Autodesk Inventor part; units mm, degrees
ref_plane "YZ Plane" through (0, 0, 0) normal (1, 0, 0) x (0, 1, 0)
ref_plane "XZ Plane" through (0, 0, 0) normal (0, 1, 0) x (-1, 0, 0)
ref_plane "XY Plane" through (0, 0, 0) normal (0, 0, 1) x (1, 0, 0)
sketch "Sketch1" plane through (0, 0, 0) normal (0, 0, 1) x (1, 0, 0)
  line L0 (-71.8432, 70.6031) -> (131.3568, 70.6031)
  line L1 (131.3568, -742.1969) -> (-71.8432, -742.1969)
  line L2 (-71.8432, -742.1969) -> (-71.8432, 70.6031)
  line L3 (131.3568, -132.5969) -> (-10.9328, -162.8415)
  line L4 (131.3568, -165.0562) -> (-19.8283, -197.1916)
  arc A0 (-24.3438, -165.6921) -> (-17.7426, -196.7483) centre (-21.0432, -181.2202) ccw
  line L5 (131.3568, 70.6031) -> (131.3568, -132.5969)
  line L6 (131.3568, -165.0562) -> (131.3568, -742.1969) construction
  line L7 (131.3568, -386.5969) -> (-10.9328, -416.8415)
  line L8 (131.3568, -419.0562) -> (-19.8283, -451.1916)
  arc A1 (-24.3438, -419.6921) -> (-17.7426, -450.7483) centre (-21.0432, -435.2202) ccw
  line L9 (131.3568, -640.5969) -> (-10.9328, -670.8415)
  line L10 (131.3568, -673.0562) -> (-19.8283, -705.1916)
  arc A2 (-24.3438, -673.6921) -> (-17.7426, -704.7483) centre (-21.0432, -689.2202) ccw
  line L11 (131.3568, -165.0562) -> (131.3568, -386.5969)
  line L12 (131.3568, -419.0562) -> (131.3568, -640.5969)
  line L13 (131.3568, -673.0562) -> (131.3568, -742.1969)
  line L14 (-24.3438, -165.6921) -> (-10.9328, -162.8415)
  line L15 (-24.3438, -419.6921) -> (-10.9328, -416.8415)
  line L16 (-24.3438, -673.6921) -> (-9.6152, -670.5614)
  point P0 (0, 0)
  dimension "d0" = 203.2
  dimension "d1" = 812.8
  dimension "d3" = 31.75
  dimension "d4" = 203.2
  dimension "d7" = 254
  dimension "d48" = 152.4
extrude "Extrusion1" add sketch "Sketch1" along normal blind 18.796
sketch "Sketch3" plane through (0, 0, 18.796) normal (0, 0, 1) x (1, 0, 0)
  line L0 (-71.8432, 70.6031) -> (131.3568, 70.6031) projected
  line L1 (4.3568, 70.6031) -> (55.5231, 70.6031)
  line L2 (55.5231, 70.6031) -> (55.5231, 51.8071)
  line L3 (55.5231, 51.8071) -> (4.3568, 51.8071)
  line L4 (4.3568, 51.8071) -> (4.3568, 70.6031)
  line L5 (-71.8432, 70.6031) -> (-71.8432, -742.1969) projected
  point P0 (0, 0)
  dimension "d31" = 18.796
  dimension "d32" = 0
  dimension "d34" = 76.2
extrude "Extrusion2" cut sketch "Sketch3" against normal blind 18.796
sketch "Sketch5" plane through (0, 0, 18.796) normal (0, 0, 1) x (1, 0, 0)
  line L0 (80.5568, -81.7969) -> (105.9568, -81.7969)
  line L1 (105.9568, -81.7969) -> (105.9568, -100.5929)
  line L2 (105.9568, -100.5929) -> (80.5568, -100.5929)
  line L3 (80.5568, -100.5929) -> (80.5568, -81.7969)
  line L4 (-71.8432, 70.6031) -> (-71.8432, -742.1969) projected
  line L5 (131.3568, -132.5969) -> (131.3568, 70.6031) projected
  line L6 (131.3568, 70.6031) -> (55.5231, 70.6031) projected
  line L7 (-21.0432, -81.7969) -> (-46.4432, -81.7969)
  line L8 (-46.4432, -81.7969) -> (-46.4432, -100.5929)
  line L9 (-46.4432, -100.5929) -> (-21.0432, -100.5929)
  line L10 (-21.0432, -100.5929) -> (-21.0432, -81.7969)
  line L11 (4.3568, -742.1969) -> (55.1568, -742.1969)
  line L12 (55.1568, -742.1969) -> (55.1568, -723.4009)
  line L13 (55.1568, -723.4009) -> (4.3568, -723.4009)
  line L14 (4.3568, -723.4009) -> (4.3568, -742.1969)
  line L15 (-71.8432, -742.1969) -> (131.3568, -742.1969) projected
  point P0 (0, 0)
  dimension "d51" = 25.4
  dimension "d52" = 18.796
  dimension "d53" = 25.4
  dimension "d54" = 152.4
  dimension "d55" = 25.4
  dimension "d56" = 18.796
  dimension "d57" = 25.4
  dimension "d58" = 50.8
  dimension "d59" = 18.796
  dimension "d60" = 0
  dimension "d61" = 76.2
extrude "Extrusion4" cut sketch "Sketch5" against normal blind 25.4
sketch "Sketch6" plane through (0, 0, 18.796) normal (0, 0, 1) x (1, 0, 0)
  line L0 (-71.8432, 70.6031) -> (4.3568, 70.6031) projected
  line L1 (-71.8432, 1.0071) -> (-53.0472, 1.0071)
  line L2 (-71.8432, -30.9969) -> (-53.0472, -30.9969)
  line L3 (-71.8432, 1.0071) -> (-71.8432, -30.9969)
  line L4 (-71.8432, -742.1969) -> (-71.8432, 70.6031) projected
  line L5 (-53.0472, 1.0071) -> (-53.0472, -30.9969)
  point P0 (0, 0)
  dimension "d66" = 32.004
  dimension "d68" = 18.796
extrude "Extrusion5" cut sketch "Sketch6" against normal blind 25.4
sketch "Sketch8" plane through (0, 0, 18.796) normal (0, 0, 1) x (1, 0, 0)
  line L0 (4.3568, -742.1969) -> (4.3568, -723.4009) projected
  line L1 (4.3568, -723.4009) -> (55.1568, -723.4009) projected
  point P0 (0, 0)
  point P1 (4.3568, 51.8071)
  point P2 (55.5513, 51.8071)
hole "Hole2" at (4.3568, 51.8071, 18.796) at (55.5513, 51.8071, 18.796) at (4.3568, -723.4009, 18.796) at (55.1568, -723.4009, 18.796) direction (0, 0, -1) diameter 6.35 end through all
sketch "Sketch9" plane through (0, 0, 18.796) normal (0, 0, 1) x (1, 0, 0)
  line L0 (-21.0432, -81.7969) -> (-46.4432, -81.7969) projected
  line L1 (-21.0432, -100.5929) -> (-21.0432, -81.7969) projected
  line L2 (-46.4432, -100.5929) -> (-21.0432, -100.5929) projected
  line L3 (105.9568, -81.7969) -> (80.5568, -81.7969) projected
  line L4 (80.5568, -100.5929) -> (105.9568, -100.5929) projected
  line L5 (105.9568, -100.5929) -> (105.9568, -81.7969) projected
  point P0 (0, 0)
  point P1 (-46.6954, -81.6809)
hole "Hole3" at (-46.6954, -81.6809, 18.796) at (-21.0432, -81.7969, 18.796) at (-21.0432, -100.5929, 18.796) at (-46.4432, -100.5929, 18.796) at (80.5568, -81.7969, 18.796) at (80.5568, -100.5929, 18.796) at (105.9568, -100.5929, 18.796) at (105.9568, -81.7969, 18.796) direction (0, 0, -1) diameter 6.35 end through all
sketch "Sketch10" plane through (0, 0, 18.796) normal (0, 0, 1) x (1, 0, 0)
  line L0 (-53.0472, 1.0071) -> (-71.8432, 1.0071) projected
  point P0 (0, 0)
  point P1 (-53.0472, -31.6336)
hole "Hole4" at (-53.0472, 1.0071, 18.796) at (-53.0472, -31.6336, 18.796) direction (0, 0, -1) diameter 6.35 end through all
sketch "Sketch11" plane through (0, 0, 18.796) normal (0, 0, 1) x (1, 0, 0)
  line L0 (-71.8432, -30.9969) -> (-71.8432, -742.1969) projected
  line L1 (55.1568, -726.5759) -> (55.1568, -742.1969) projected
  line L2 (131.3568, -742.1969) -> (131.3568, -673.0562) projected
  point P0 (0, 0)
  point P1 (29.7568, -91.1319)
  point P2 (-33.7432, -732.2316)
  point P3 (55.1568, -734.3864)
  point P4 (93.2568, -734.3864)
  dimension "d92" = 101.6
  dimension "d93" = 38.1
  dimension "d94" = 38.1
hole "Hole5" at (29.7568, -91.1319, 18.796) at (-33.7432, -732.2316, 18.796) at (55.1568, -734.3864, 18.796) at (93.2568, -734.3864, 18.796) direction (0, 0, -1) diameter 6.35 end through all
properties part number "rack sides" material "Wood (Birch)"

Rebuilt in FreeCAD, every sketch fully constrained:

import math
import FreeCAD as App
import Part
import Sketcher
from FreeCAD import Vector
Q = App.Units.Quantity


def add_polygon(sketch, points):
    """Adds a closed chain of lines whose ends are joined by coincident constraints."""
    first, n = sketch.GeometryCount, len(points)
    for a, b in zip(points, points[1:] + points[:1]):
        sketch.addGeometry(Part.LineSegment(App.Vector(*a, 0), App.Vector(*b, 0)), False)
    for i in range(n):
        sketch.addConstraint(Sketcher.Constraint("Coincident", first + i, 2, first + (i + 1) % n, 1))

doc = App.newDocument("Part")
body = doc.addObject("PartDesign::Body", "Body")

# Sketch on XY plane
sketch1 = body.newObject("Sketcher::SketchObject", "Sketch")
sketch1.AttachmentSupport = (doc.getObject("XY_Plane"), [""])
sketch1.MapMode = "FlatFace"
sketch1.addGeometry([
    Part.LineSegment(Vector(131, 71, 0), Vector(-72, 71, 0)),  # 0
    Part.LineSegment(Vector(-72, 71, 0), Vector(-72, -742, 0)),  # 1
    Part.LineSegment(Vector(-72, -742, 0), Vector(131, -742, 0)),  # 2
    Part.LineSegment(Vector(131, -742, 0), Vector(131, -673, 0)),  # 3
    Part.LineSegment(Vector(131, -673, 0), Vector(-18, -705, 0)),  # 4
    Part.ArcOfCircle(Part.Circle(Vector(-21, -689, 0), Vector(0, 0, 1), 16), math.radians(102), math.radians(282)),  # 5
    Part.LineSegment(Vector(-24, -674, 0), Vector(-11, -671, 0)),  # 6
    Part.LineSegment(Vector(-11, -671, 0), Vector(131, -641, 0)),  # 7
    Part.LineSegment(Vector(131, -641, 0), Vector(131, -419, 0)),  # 8
    Part.LineSegment(Vector(131, -419, 0), Vector(-18, -451, 0)),  # 9
    Part.ArcOfCircle(Part.Circle(Vector(-21, -435, 0), Vector(0, 0, 1), 16), math.radians(102), math.radians(282)),  # 10
    Part.LineSegment(Vector(-24, -420, 0), Vector(-11, -417, 0)),  # 11
    Part.LineSegment(Vector(-11, -417, 0), Vector(131, -387, 0)),  # 12
    Part.LineSegment(Vector(131, -387, 0), Vector(131, -165, 0)),  # 13
    Part.LineSegment(Vector(131, -165, 0), Vector(-18, -197, 0)),  # 14
    Part.ArcOfCircle(Part.Circle(Vector(-21, -181, 0), Vector(0, 0, 1), 16), math.radians(102), math.radians(282)),  # 15
    Part.LineSegment(Vector(-24, -166, 0), Vector(-11, -163, 0)),  # 16
    Part.LineSegment(Vector(-11, -163, 0), Vector(131, -133, 0)),  # 17
    Part.LineSegment(Vector(131, -133, 0), Vector(131, 71, 0)),  # 18
], False)
sketch1.addConstraint([
    Sketcher.Constraint("Coincident", 0, 2, 1, 1),
    Sketcher.Constraint("Coincident", 1, 2, 2, 1),
    Sketcher.Constraint("Coincident", 2, 2, 3, 1),
    Sketcher.Constraint("Coincident", 3, 2, 4, 1),
    Sketcher.Constraint("Tangent", 4, 2, 5, 2),
    Sketcher.Constraint("Tangent", 5, 1, 6, 1),
    Sketcher.Constraint("Coincident", 6, 2, 7, 1),
    Sketcher.Constraint("Coincident", 7, 2, 8, 1),
    Sketcher.Constraint("Coincident", 8, 2, 9, 1),
    Sketcher.Constraint("Tangent", 9, 2, 10, 2),
    Sketcher.Constraint("Tangent", 10, 1, 11, 1),
    Sketcher.Constraint("Coincident", 11, 2, 12, 1),
    Sketcher.Constraint("Coincident", 12, 2, 13, 1),
    Sketcher.Constraint("Coincident", 13, 2, 14, 1),
    Sketcher.Constraint("Tangent", 14, 2, 15, 2),
    Sketcher.Constraint("Tangent", 15, 1, 16, 1),
    Sketcher.Constraint("Coincident", 16, 2, 17, 1),
    Sketcher.Constraint("Coincident", 17, 2, 18, 1),
    Sketcher.Constraint("Coincident", 18, 2, 0, 1),
    Sketcher.Constraint("Horizontal", 0),
    Sketcher.Constraint("Vertical", 1),
    Sketcher.Constraint("Horizontal", 2),
    Sketcher.Constraint("Vertical", 3),
    Sketcher.Constraint("Vertical", 8),
    Sketcher.Constraint("Vertical", 13),
    Sketcher.Constraint("Vertical", 18),
    Sketcher.Constraint("Equal", 5, 10),
    Sketcher.Constraint("Equal", 10, 15),
    Sketcher.Constraint("Parallel", 4, 6),
    Sketcher.Constraint("Parallel", 6, 7),
    Sketcher.Constraint("Parallel", 7, 9),
    Sketcher.Constraint("Parallel", 9, 11),
    Sketcher.Constraint("Parallel", 11, 12),
    Sketcher.Constraint("Parallel", 12, 14),
    Sketcher.Constraint("Parallel", 14, 16),
    Sketcher.Constraint("Parallel", 16, 17),
    Sketcher.Constraint("Vertical", 5, 3, 10, 3),
    Sketcher.Constraint("Vertical", 10, 3, 15, 3),
    Sketcher.Constraint("Vertical", 3, 2, 7, 2),
    Sketcher.Constraint("Vertical", 6, 2, 11, 2),
    Sketcher.Constraint("Vertical", 8, 2, 12, 2),
    Sketcher.Constraint("Vertical", 11, 2, 16, 2),
    Sketcher.Constraint("Vertical", 13, 2, 17, 2),
    Sketcher.Constraint("Equal", 8, 13),
    Sketcher.Constraint("Equal", 2, 18),
    Sketcher.Constraint("DistanceX", 0, 2, 0, 1, Q("8 in")),
    Sketcher.Constraint("DistanceY", 1, 2, 1, 1, Q("32 in")),
    Sketcher.Constraint("Radius", 5, Q("0.625 in")),
    Sketcher.Constraint("DistanceY", 5, 3, 10, 3, Q("10 in")),
    Sketcher.Constraint("DistanceX", 5, 3, 2, 2, Q("6 in")),
    Sketcher.Constraint("Angle", 4, Q("-168 deg")),
    Sketcher.Constraint("DistanceY", 4, 2, -1, 1, Q("27.746 in")),
    Sketcher.Constraint("DistanceX", 5, 1, 6, 2, Q("0.528 in")),
    Sketcher.Constraint("DistanceX", 5, 3, -1, 1, Q("21.0432 mm")),
])
pad1 = body.newObject("PartDesign::Pad", "Pad")
pad1.Profile = sketch1
pad1.Length = Q("0.74 in")

# Sketch on XY plane
sketch2 = body.newObject("Sketcher::SketchObject", "Sketch001")
sketch2.AttachmentSupport = (doc.getObject("XY_Plane"), [""])
sketch2.MapMode = "FlatFace"
sketch2.AttachmentOffset = App.Placement(Vector(0, 0, 0.74 * 25.4), App.Rotation())
add_polygon(sketch2, [(56, 71), (4, 71), (4, 52), (56, 52)])  # lines 0-3
sketch2.addConstraint([
    Sketcher.Constraint("Horizontal", 0),
    Sketcher.Constraint("Vertical", 1),
    Sketcher.Constraint("Horizontal", 2),
    Sketcher.Constraint("Vertical", 3),
    Sketcher.Constraint("DistanceY", 1, 2, 1, 1, Q("0.74 in")),
    Sketcher.Constraint("DistanceX", 0, 2, 0, 1, Q("51.1663 mm")),
    Sketcher.Constraint("DistanceX", -1, 1, 0, 2, Q("4.3568 mm")),
    Sketcher.Constraint("DistanceY", -1, 1, 0, 2, Q("70.603 mm")),
])
pocket1 = body.newObject("PartDesign::Pocket", "Pocket")
pocket1.Profile = sketch2
pocket1.Length = Q("0.74 in")

# Sketch on XY plane
sketch3 = body.newObject("Sketcher::SketchObject", "Sketch002")
sketch3.AttachmentSupport = (doc.getObject("XY_Plane"), [""])
sketch3.MapMode = "FlatFace"
sketch3.AttachmentOffset = App.Placement(Vector(0, 0, 0.74 * 25.4), App.Rotation())
add_polygon(sketch3, [(106, -82), (81, -82), (81, -101), (106, -101)])  # lines 0-3
add_polygon(sketch3, [(-21, -101), (-21, -82), (-46, -82), (-46, -101)])  # lines 4-7
add_polygon(sketch3, [(4, -723), (4, -742), (55, -742), (55, -723)])  # lines 8-11
sketch3.addConstraint([
    Sketcher.Constraint("Horizontal", 0),
    Sketcher.Constraint("Vertical", 1),
    Sketcher.Constraint("Horizontal", 2),
    Sketcher.Constraint("Vertical", 3),
    Sketcher.Constraint("Vertical", 4),
    Sketcher.Constraint("Horizontal", 5),
    Sketcher.Constraint("Vertical", 6),
    Sketcher.Constraint("Horizontal", 7),
    Sketcher.Constraint("Vertical", 8),
    Sketcher.Constraint("Horizontal", 9),
    Sketcher.Constraint("Vertical", 10),
    Sketcher.Constraint("Horizontal", 11),
    Sketcher.Constraint("Horizontal", 3, 2, 4, 2),
    Sketcher.Constraint("Horizontal", 2, 2, 6, 2),
    Sketcher.Constraint("Equal", 2, 5),
    Sketcher.Constraint("Equal", 6, 8),
    Sketcher.Constraint("DistanceX", 0, 2, 0, 1, Q("1 in")),
    Sketcher.Constraint("DistanceX", 9, 1, 9, 2, Q("2 in")),
    Sketcher.Constraint("DistanceX", 5, 2, 3, 2, Q("6 in")),
    Sketcher.Constraint("DistanceX", 7, 2, 8, 2, Q("1 in")),
    Sketcher.Constraint("DistanceY", 1, 2, 1, 1, Q("0.74 in")),
    Sketcher.Constraint("DistanceY", 8, 2, 4, 2, Q("26 in")),
    Sketcher.Constraint("DistanceX", -1, 1, 0, 2, Q("80.5568 mm")),
    Sketcher.Constraint("DistanceY", 0, 2, -1, 1, Q("81.797 mm")),
])
pocket2 = body.newObject("PartDesign::Pocket", "Pocket001")
pocket2.Profile = sketch3
pocket2.Length = Q("1 in")

# Sketch on XY plane
sketch4 = body.newObject("Sketcher::SketchObject", "Sketch003")
sketch4.AttachmentSupport = (doc.getObject("XY_Plane"), [""])
sketch4.MapMode = "FlatFace"
sketch4.AttachmentOffset = App.Placement(Vector(0, 0, 0.74 * 25.4), App.Rotation())
add_polygon(sketch4, [(-53, 1), (-72, 1), (-72, -31), (-53, -31)])  # lines 0-3
sketch4.addConstraint([
    Sketcher.Constraint("Horizontal", 0),
    Sketcher.Constraint("Vertical", 1),
    Sketcher.Constraint("Horizontal", 2),
    Sketcher.Constraint("Vertical", 3),
    Sketcher.Constraint("DistanceX", 0, 2, 0, 1, Q("0.74 in")),
    Sketcher.Constraint("DistanceY", 1, 2, 1, 1, Q("1.26 in")),
    Sketcher.Constraint("DistanceX", 0, 2, -1, 1, Q("71.8432 mm")),
    Sketcher.Constraint("DistanceY", -1, 1, 0, 2, Q("1.007 mm")),
])
pocket3 = body.newObject("PartDesign::Pocket", "Pocket002")
pocket3.Profile = sketch4
pocket3.Length = Q("1 in")

# Sketch on XY plane
sketch5 = body.newObject("Sketcher::SketchObject", "Sketch004")
sketch5.AttachmentSupport = (doc.getObject("XY_Plane"), [""])
sketch5.MapMode = "FlatFace"
sketch5.AttachmentOffset = App.Placement(Vector(0, 0, 0.74 * 25.4), App.Rotation())
sketch5.addGeometry([
    Part.Circle(Vector(4.4, 51.8, 0), Vector(0, 0, 1), 3.2),
    Part.Circle(Vector(55.6, 51.8, 0), Vector(0, 0, 1), 3.2),
    Part.Circle(Vector(4.4, -723.4, 0), Vector(0, 0, 1), 3.2),
    Part.Circle(Vector(55.2, -723.4, 0), Vector(0, 0, 1), 3.2),
], False)
sketch5.addConstraint([
    Sketcher.Constraint("Equal", 0, 1),
    Sketcher.Constraint("Equal", 1, 2),
    Sketcher.Constraint("Equal", 2, 3),
    Sketcher.Constraint("Horizontal", 0, 3, 1, 3),
    Sketcher.Constraint("Horizontal", 2, 3, 3, 3),
    Sketcher.Constraint("Vertical", 0, 3, 2, 3),
    Sketcher.Constraint("Diameter", 0, Q("0.25 in")),
    Sketcher.Constraint("DistanceX", 2, 3, 3, 3, Q("2 in")),
    Sketcher.Constraint("DistanceY", 2, 3, 0, 3, Q("30.52 in")),
    Sketcher.Constraint("DistanceX", -1, 1, 0, 3, Q("4.3568 mm")),
    Sketcher.Constraint("DistanceY", -1, 1, 0, 3, Q("51.807 mm")),
    Sketcher.Constraint("DistanceX", -1, 1, 1, 3, Q("55.5513 mm")),
])
doc.recompute()
hole = body.newObject("PartDesign::Hole", "Hole")
hole.Profile = sketch5
hole.ThreadType = "None"
hole.Diameter = Q("0.25 in")
hole.DepthType = "ThroughAll"

# Sketch on XY plane
sketch6 = body.newObject("Sketcher::SketchObject", "Sketch005")
sketch6.AttachmentSupport = (doc.getObject("XY_Plane"), [""])
sketch6.MapMode = "FlatFace"
sketch6.AttachmentOffset = App.Placement(Vector(0, 0, 0.74 * 25.4), App.Rotation())
sketch6.addGeometry([
    Part.Circle(Vector(-46.7, -81.7, 0), Vector(0, 0, 1), 3.2),  # 0
    Part.Circle(Vector(-21, -81.8, 0), Vector(0, 0, 1), 3.2),  # 1
    Part.Circle(Vector(-21, -100.6, 0), Vector(0, 0, 1), 3.2),  # 2
    Part.Circle(Vector(-46.4, -100.6, 0), Vector(0, 0, 1), 3.2),  # 3
    Part.Circle(Vector(80.6, -81.8, 0), Vector(0, 0, 1), 3.2),  # 4
    Part.Circle(Vector(80.6, -100.6, 0), Vector(0, 0, 1), 3.2),  # 5
    Part.Circle(Vector(106, -100.6, 0), Vector(0, 0, 1), 3.2),  # 6
    Part.Circle(Vector(106, -81.8, 0), Vector(0, 0, 1), 3.2),  # 7
], False)
sketch6.addConstraint([
    Sketcher.Constraint("Equal", 0, 1),
    Sketcher.Constraint("Equal", 1, 2),
    Sketcher.Constraint("Equal", 2, 3),
    Sketcher.Constraint("Equal", 3, 4),
    Sketcher.Constraint("Equal", 4, 5),
    Sketcher.Constraint("Equal", 5, 6),
    Sketcher.Constraint("Equal", 6, 7),
    Sketcher.Constraint("Horizontal", 2, 3, 3, 3),
    Sketcher.Constraint("Horizontal", 1, 3, 4, 3),
    Sketcher.Constraint("Horizontal", 3, 3, 5, 3),
    Sketcher.Constraint("Horizontal", 5, 3, 6, 3),
    Sketcher.Constraint("Horizontal", 4, 3, 7, 3),
    Sketcher.Constraint("Vertical", 1, 3, 2, 3),
    Sketcher.Constraint("Vertical", 4, 3, 5, 3),
    Sketcher.Constraint("Vertical", 6, 3, 7, 3),
    Sketcher.Constraint("Diameter", 0, Q("0.25 in")),
    Sketcher.Constraint("DistanceX", 3, 3, 2, 3, Q("1 in")),
    Sketcher.Constraint("DistanceX", 1, 3, 4, 3, Q("4 in")),
    Sketcher.Constraint("DistanceX", 5, 3, 6, 3, Q("1 in")),
    Sketcher.Constraint("DistanceY", 2, 3, 1, 3, Q("0.74 in")),
    Sketcher.Constraint("DistanceX", 0, 3, -1, 1, Q("1.8384 in")),
    Sketcher.Constraint("DistanceY", 0, 3, -1, 1, Q("81.681 mm")),
    Sketcher.Constraint("DistanceX", 1, 3, -1, 1, Q("21.0432 mm")),
    Sketcher.Constraint("DistanceY", 1, 3, -1, 1, Q("81.797 mm")),
])
doc.recompute()
hole2 = body.newObject("PartDesign::Hole", "Hole001")
hole2.Profile = sketch6
hole2.ThreadType = "None"
hole2.Diameter = Q("0.25 in")
hole2.DepthType = "ThroughAll"

# Sketch on XY plane
sketch7 = body.newObject("Sketcher::SketchObject", "Sketch006")
sketch7.AttachmentSupport = (doc.getObject("XY_Plane"), [""])
sketch7.MapMode = "FlatFace"
sketch7.AttachmentOffset = App.Placement(Vector(0, 0, 0.74 * 25.4), App.Rotation())
sketch7.addGeometry([
    Part.Circle(Vector(-53, 1, 0), Vector(0, 0, 1), 3.2),
    Part.Circle(Vector(-53, -31.6, 0), Vector(0, 0, 1), 3.2),
], False)
sketch7.addConstraint([
    Sketcher.Constraint("Equal", 0, 1),
    Sketcher.Constraint("Vertical", 0, 3, 1, 3),
    Sketcher.Constraint("Diameter", 0, Q("0.25 in")),
    Sketcher.Constraint("DistanceX", 0, 3, -1, 1, Q("53.0472 mm")),
    Sketcher.Constraint("DistanceY", -1, 1, 0, 3, Q("1.007 mm")),
    Sketcher.Constraint("DistanceY", 1, 3, -1, 1, Q("31.6336 mm")),
])
doc.recompute()
hole3 = body.newObject("PartDesign::Hole", "Hole002")
hole3.Profile = sketch7
hole3.ThreadType = "None"
hole3.Diameter = Q("0.25 in")
hole3.DepthType = "ThroughAll"

# Sketch on XY plane
sketch8 = body.newObject("Sketcher::SketchObject", "Sketch007")
sketch8.AttachmentSupport = (doc.getObject("XY_Plane"), [""])
sketch8.MapMode = "FlatFace"
sketch8.AttachmentOffset = App.Placement(Vector(0, 0, 0.74 * 25.4), App.Rotation())
sketch8.addGeometry([
    Part.Circle(Vector(29.8, -91.1, 0), Vector(0, 0, 1), 3.2),
    Part.Circle(Vector(-33.7, -732.2, 0), Vector(0, 0, 1), 3.2),
    Part.Circle(Vector(55.2, -734.4, 0), Vector(0, 0, 1), 3.2),
    Part.Circle(Vector(93.3, -734.4, 0), Vector(0, 0, 1), 3.2),
], False)
sketch8.addConstraint([
    Sketcher.Constraint("Equal", 0, 1),
    Sketcher.Constraint("Equal", 1, 2),
    Sketcher.Constraint("Equal", 2, 3),
    Sketcher.Constraint("Horizontal", 2, 3, 3, 3),
    Sketcher.Constraint("Diameter", 0, Q("0.25 in")),
    Sketcher.Constraint("DistanceX", 0, 3, 2, 3, Q("1 in")),
    Sketcher.Constraint("DistanceX", 1, 3, 3, 3, Q("5 in")),
    Sketcher.Constraint("DistanceX", 1, 3, 0, 3, Q("2.5 in")),
    Sketcher.Constraint("DistanceX", -1, 1, 0, 3, Q("29.7568 mm")),
    Sketcher.Constraint("DistanceY", 0, 3, -1, 1, Q("91.132 mm")),
    Sketcher.Constraint("DistanceY", 1, 3, -1, 1, Q("732.2316 mm")),
    Sketcher.Constraint("DistanceY", 2, 3, -1, 1, Q("734.3864 mm")),
])
doc.recompute()
hole4 = body.newObject("PartDesign::Hole", "Hole003")
hole4.Profile = sketch8
hole4.ThreadType = "None"
hole4.Diameter = Q("0.25 in")
hole4.DepthType = "ThroughAll"

doc.recompute()
